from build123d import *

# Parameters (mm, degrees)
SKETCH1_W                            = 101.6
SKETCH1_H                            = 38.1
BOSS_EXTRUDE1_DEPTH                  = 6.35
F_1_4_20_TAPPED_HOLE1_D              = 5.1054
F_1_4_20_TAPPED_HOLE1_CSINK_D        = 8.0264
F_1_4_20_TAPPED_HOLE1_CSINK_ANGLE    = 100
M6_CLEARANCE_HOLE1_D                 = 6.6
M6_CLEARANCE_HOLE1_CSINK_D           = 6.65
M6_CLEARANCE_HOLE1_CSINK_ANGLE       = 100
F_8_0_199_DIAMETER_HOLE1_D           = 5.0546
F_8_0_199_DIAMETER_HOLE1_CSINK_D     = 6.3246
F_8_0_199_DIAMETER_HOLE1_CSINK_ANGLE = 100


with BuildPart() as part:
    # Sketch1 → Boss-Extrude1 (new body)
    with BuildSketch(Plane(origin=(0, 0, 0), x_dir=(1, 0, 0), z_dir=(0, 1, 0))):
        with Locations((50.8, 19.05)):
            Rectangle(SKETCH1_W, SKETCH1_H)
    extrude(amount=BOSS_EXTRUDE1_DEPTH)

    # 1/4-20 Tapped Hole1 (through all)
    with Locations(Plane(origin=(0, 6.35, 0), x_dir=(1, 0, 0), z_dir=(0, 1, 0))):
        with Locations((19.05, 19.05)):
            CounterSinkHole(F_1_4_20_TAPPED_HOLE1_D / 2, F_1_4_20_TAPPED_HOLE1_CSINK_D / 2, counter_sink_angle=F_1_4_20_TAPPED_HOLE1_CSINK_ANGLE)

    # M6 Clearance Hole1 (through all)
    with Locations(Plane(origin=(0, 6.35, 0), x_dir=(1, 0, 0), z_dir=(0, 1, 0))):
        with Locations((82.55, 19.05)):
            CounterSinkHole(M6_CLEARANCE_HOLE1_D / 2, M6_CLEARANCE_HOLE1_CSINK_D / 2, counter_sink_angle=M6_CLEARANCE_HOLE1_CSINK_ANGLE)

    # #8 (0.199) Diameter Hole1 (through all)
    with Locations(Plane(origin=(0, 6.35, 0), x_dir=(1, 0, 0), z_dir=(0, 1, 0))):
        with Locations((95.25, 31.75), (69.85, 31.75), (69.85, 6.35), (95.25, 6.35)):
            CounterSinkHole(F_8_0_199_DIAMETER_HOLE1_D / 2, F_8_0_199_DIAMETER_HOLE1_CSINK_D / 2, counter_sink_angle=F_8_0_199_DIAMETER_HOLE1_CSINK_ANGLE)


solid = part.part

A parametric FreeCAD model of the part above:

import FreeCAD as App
import Part
import Sketcher
Q = App.Units.Quantity


def add_polygon(sketch, points):
    """Adds a closed chain of lines whose ends are joined by coincident constraints."""
    first, n = sketch.GeometryCount, len(points)
    for a, b in zip(points, points[1:] + points[:1]):
        sketch.addGeometry(Part.LineSegment(App.Vector(*a, 0), App.Vector(*b, 0)), False)
    for i in range(n):
        sketch.addConstraint(Sketcher.Constraint("Coincident", first + i, 2, first + (i + 1) % n, 1))

doc = App.newDocument("Part")
params = doc.addObject("Spreadsheet::Sheet", "Params")
for row, (alias, value) in enumerate([
    ("sketch1_width", "4 in"),
    ("sketch1_height", "1.5 in"),
    ("pad1_length", "0.25 in"),
    ("sketch2_diameter", "0.201 in"),
    ("hole_diameter", "0.201 in"),
    ("hole_csink_diameter", "0.316 in"),
    ("hole2_diameter", "6.6 mm"),
    ("hole2_csink_diameter", "6.65 mm"),
    ("sketch4_diameter", "0.199 in"),
    ("hole3_diameter", "0.199 in"),
    ("hole3_csink_diameter", "0.249 in"),
], start=1):
    params.set(f"A{row}", alias)
    params.set(f"B{row}", "=" + value)
    params.setAlias(f"B{row}", alias)

body = doc.addObject("PartDesign::Body", "Body")

sketch1 = body.newObject("Sketcher::SketchObject", "Sketch")
sketch1.AttachmentSupport = (doc.getObject("XZ_Plane"), [""])
sketch1.MapMode = "FlatFace"
add_polygon(sketch1, [(0, -38), (0, 0), (102, 0), (102, -38)])
sketch1.addConstraint([
    Sketcher.Constraint("Vertical", 0),
    Sketcher.Constraint("Horizontal", 1),
    Sketcher.Constraint("Vertical", 2),
    Sketcher.Constraint("Horizontal", 3),
    Sketcher.Constraint("Coincident", 0, 2, -1, 1),
    Sketcher.Constraint("DistanceX", 1, 1, 1, 2, Q("4 in")),
    Sketcher.Constraint("DistanceY", 0, 1, 0, 2, Q("1.5 in")),
])
sketch1.setExpression("Constraints[9]", "Params.sketch1_width")
sketch1.setExpression("Constraints[10]", "Params.sketch1_height")
pad1 = body.newObject("PartDesign::Pad", "Pad")
pad1.Profile = sketch1
pad1.setExpression("Length", "Params.pad1_length")
pad1.Reversed = True

sketch2 = body.newObject("Sketcher::SketchObject", "Sketch001")
sketch2.AttachmentSupport = (doc.getObject("XZ_Plane"), [""])
sketch2.MapMode = "FlatFace"
sketch2.AttachmentOffset = App.Placement(App.Vector(0, 0, -0.25 * 25.4), App.Rotation())
sketch2.addGeometry(Part.Circle(App.Vector(19.1, -19.1, 0), App.Vector(0, 0, 1), 2.6), False)
sketch2.addConstraint([
    Sketcher.Constraint("Diameter", 0, Q("0.201 in")),
    Sketcher.Constraint("DistanceX", -1, 1, 0, 3, Q("0.75 in")),
    Sketcher.Constraint("DistanceY", 0, 3, -1, 1, Q("0.75 in")),
])
sketch2.setExpression("Constraints[0]", "Params.sketch2_diameter")
doc.recompute()
hole = body.newObject("PartDesign::Hole", "Hole")
hole.Profile = sketch2
hole.ThreadType = "None"
hole.setExpression("Diameter", "Params.hole_diameter")
hole.DepthType = "ThroughAll"
hole.HoleCutType = "Countersink"
hole.setExpression("HoleCutDiameter", "Params.hole_csink_diameter")
hole.HoleCutCountersinkAngle = 100
hole.Reversed = True

sketch3 = body.newObject("Sketcher::SketchObject", "Sketch002")
sketch3.AttachmentSupport = (doc.getObject("XZ_Plane"), [""])
sketch3.MapMode = "FlatFace"
sketch3.AttachmentOffset = App.Placement(App.Vector(0, 0, -0.25 * 25.4), App.Rotation())
sketch3.addGeometry(Part.Circle(App.Vector(82.5, -19.1, 0), App.Vector(0, 0, 1), 3.3), False)
sketch3.addConstraint([
    Sketcher.Constraint("Diameter", 0, Q("6.6 mm")),
    Sketcher.Constraint("DistanceX", -1, 1, 0, 3, Q("3.25 in")),
    Sketcher.Constraint("DistanceY", 0, 3, -1, 1, Q("0.75 in")),
])
doc.recompute()
hole2 = body.newObject("PartDesign::Hole", "Hole001")
hole2.Profile = sketch3
hole2.ThreadType = "None"
hole2.setExpression("Diameter", "Params.hole2_diameter")
hole2.DepthType = "ThroughAll"
hole2.HoleCutType = "Countersink"
hole2.setExpression("HoleCutDiameter", "Params.hole2_csink_diameter")
hole2.HoleCutCountersinkAngle = 100
hole2.Reversed = True

sketch4 = body.newObject("Sketcher::SketchObject", "Sketch003")
sketch4.AttachmentSupport = (doc.getObject("XZ_Plane"), [""])
sketch4.MapMode = "FlatFace"
sketch4.AttachmentOffset = App.Placement(App.Vector(0, 0, -0.25 * 25.4), App.Rotation())
sketch4.addGeometry([
    Part.Circle(App.Vector(95.2, -31.8, 0), App.Vector(0, 0, 1), 2.5),
    Part.Circle(App.Vector(69.8, -31.8, 0), App.Vector(0, 0, 1), 2.5),
    Part.Circle(App.Vector(69.8, -6.3, 0), App.Vector(0, 0, 1), 2.5),
    Part.Circle(App.Vector(95.2, -6.3, 0), App.Vector(0, 0, 1), 2.5),
], False)
sketch4.addConstraint([
    Sketcher.Constraint("Equal", 0, 1),
    Sketcher.Constraint("Equal", 1, 2),
    Sketcher.Constraint("Equal", 2, 3),
    Sketcher.Constraint("Horizontal", 0, 3, 1, 3),
    Sketcher.Constraint("Horizontal", 2, 3, 3, 3),
    Sketcher.Constraint("Vertical", 1, 3, 2, 3),
    Sketcher.Constraint("Vertical", 0, 3, 3, 3),
    Sketcher.Constraint("Diameter", 0, Q("0.199 in")),
    Sketcher.Constraint("DistanceX", 1, 3, 0, 3, Q("1 in")),
    Sketcher.Constraint("DistanceY", 1, 3, 2, 3, Q("1 in")),
    Sketcher.Constraint("DistanceX", -1, 1, 0, 3, Q("3.75 in")),
    Sketcher.Constraint("DistanceY", 0, 3, -1, 1, Q("1.25 in")),
])
sketch4.setExpression("Constraints[7]", "Params.sketch4_diameter")
doc.recompute()
hole3 = body.newObject("PartDesign::Hole", "Hole002")
hole3.Profile = sketch4
hole3.ThreadType = "None"
hole3.setExpression("Diameter", "Params.hole3_diameter")
hole3.DepthType = "ThroughAll"
hole3.HoleCutType = "Countersink"
hole3.setExpression("HoleCutDiameter", "Params.hole3_csink_diameter")
hole3.HoleCutCountersinkAngle = 100
hole3.Reversed = True

doc.recompute()
